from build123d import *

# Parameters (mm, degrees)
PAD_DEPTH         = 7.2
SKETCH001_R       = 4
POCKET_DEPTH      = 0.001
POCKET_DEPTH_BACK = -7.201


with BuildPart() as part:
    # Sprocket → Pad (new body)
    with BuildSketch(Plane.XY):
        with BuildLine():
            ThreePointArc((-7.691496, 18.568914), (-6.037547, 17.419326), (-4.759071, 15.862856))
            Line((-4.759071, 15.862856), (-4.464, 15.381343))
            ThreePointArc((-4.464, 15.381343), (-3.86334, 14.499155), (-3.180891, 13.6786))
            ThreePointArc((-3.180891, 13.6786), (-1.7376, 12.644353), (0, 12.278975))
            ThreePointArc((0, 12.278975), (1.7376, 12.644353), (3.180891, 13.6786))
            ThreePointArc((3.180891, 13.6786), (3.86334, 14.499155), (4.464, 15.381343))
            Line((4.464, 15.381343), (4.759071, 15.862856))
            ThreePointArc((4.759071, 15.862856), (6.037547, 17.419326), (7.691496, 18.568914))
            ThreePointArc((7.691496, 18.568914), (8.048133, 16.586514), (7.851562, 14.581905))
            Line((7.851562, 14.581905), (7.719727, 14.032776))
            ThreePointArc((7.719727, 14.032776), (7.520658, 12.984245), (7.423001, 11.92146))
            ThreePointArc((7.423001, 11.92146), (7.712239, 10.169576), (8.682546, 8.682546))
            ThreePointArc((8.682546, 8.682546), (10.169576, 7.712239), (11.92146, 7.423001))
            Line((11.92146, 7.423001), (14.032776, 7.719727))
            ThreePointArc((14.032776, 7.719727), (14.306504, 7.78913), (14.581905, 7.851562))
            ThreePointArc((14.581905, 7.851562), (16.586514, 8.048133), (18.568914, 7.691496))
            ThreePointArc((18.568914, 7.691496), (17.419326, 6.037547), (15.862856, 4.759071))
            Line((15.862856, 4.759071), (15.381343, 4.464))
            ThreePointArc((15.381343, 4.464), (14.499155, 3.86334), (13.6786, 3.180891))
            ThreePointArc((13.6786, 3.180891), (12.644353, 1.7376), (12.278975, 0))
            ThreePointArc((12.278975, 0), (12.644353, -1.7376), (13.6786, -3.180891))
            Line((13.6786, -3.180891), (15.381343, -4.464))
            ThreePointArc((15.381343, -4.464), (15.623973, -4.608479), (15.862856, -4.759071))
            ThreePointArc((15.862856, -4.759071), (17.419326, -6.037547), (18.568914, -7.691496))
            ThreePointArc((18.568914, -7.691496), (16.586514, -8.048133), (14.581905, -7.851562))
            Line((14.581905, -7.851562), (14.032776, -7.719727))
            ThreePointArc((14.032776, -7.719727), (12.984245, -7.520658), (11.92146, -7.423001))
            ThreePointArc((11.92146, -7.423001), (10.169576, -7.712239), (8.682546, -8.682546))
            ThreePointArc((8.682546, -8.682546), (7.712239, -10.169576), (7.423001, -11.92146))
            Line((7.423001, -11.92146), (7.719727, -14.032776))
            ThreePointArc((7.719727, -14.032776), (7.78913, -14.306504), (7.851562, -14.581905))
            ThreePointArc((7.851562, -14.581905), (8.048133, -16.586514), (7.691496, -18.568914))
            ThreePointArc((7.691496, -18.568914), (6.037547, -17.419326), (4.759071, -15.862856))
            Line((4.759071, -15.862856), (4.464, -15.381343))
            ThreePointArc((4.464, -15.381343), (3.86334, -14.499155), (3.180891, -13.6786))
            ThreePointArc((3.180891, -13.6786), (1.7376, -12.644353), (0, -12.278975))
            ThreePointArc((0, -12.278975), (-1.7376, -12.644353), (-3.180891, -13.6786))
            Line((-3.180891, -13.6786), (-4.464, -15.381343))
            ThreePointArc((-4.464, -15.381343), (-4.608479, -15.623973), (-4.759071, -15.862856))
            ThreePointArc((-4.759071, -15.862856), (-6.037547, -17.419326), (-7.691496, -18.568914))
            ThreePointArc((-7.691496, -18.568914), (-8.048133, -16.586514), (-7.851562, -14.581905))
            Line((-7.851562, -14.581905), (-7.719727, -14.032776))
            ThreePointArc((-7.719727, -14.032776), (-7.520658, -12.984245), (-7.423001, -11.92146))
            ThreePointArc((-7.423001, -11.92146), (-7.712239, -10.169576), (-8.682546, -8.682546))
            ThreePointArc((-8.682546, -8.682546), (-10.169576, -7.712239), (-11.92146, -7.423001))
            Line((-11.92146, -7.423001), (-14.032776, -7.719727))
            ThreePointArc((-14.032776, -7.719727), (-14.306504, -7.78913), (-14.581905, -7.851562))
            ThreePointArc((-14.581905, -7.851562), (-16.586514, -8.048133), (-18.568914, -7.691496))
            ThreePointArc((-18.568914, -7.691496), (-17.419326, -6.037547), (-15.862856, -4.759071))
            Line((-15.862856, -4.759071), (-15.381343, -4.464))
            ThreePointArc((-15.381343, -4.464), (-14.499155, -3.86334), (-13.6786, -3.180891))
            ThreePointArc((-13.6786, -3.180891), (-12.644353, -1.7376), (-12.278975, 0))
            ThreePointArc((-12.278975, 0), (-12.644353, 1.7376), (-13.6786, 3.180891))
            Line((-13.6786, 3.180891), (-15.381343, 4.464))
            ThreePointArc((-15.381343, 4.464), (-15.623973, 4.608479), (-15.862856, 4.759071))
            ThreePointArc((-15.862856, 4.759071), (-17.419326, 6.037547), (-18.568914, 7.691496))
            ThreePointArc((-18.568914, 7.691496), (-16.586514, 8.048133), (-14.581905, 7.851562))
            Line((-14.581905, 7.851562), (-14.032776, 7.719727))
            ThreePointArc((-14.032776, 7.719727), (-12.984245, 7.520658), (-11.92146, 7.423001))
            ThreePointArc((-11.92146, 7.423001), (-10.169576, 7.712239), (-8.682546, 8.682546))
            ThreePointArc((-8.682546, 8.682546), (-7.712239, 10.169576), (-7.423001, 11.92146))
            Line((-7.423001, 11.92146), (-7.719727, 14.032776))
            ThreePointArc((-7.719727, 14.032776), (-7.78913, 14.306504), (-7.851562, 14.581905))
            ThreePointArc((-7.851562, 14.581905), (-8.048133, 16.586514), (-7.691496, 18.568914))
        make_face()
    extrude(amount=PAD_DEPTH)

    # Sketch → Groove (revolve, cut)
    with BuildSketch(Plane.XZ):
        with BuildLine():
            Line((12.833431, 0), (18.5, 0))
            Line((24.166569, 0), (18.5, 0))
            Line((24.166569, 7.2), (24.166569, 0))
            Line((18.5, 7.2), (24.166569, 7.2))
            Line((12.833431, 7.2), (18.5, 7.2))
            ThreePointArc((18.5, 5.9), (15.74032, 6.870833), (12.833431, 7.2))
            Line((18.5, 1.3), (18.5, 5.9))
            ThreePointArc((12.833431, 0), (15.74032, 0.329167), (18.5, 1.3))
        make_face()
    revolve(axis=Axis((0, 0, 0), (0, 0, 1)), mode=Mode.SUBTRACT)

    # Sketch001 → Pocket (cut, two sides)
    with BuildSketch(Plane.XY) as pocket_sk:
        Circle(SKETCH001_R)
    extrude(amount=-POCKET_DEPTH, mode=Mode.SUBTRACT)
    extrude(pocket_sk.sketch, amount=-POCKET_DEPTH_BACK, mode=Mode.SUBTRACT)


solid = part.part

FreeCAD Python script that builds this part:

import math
import FreeCAD as App
import Part
import Sketcher
from FreeCAD import Vector

doc = App.newDocument("Part")
params = doc.addObject("Spreadsheet::Sheet", "Params")
for row, (alias, value) in enumerate([
    ("pad1_length", "7.2 mm"),
    ("sketch2_height", "7.2 mm"),
    ("sketch2_height2", "4.6 mm"),
    ("groove_angle", "360 deg"),
    ("sketch3_diameter", "8 mm"),
], start=1):
    params.set(f"A{row}", alias)
    params.set(f"B{row}", "=" + value)
    params.setAlias(f"B{row}", alias)

body = doc.addObject("PartDesign::Body", "Body")

sketch1 = body.newObject("Sketcher::SketchObject", "Sketch")
sketch1.AttachmentSupport = (doc.getObject("XY_Plane"), [""])
sketch1.MapMode = "FlatFace"
sketch1.addGeometry([
    Part.ArcOfCircle(Part.Circle(Vector(-11.007099, 12.034061, 0), Vector(0, 0, 1), 7.327859), math.radians(31.499988), math.radians(63.098027)),
    Part.ArcOfCircle(Part.Circle(Vector(-0.726167, 16.29256, 0), Vector(0, 0, 1), 7.327864), math.radians(161.901981), math.radians(193.499994)),
    Part.ArcOfCircle(Part.Circle(Vector(3.027006, 16.903244, 0), Vector(0, 0, 1), 11.123482), math.radians(-167.954515), math.radians(-165.045329)),
    Part.LineSegment(Vector(-7.719727, 14.032776, 0), Vector(-7.423001, 11.92146, 0)),
    Part.ArcOfCircle(Part.Circle(Vector(-11.733276, 11.733272, 0), Vector(0, 0, 1), 4.314381), math.radians(-44.999965), math.radians(2.499958)),
    Part.ArcOfCircle(Part.Circle(Vector(-11.733272, 11.733276, 0), Vector(0, 0, 1), 4.314381), math.radians(-92.499958), math.radians(-45.000035)),
    Part.ArcOfCircle(Part.Circle(Vector(-11.436285, 18.534963, 0), Vector(0, 0, 1), 11.122549), math.radians(-103.499912), math.radians(-92.500082)),
    Part.LineSegment(Vector(-14.032776, 7.719727, 0), Vector(-14.581905, 7.851562, 0)),
    Part.ArcOfCircle(Part.Circle(Vector(-16.29256, 0.726167, 0), Vector(0, 0, 1), 7.327864), math.radians(76.500006), math.radians(108.098019)),
    Part.ArcOfCircle(Part.Circle(Vector(-12.034061, 11.007099, 0), Vector(0, 0, 1), 7.327859), math.radians(-153.098027), math.radians(-121.499988)),
    Part.ArcOfCircle(Part.Circle(Vector(-9.812852, 14.091384, 0), Vector(0, 0, 1), 11.121808), math.radians(-122.954762), math.radians(-120.045144)),
    Part.LineSegment(Vector(-15.381343, 4.464, 0), Vector(-13.6786, 3.180891, 0)),
    Part.ArcOfCircle(Part.Circle(Vector(-16.593353, -0.000001, 0), Vector(0, 0, 1), 4.314378), math.radians(0.000011), math.radians(47.499973)),
    Part.ArcOfCircle(Part.Circle(Vector(-16.593353, 0.000001, 0), Vector(0, 0, 1), 4.314378), math.radians(-47.499973), math.radians(-0.000011)),
    Part.ArcOfCircle(Part.Circle(Vector(-21.192716, 5.019314, 0), Vector(0, 0, 1), 11.122288), math.radians(-58.500042), math.radians(-47.499953)),
    Part.LineSegment(Vector(-15.381343, -4.464, 0), Vector(-15.862856, -4.759071, 0)),
    Part.ArcOfCircle(Part.Circle(Vector(-12.034061, -11.007099, 0), Vector(0, 0, 1), 7.327859), math.radians(121.499988), math.radians(153.098027)),
    Part.ArcOfCircle(Part.Circle(Vector(-16.29256, -0.726167, 0), Vector(0, 0, 1), 7.327864), math.radians(-108.098019), math.radians(-76.500006)),
    Part.ArcOfCircle(Part.Circle(Vector(-16.903244, 3.027006, 0), Vector(0, 0, 1), 11.123482), math.radians(-77.954515), math.radians(-75.045329)),
    Part.LineSegment(Vector(-14.032776, -7.719727, 0), Vector(-11.92146, -7.423001, 0)),
    Part.ArcOfCircle(Part.Circle(Vector(-11.733272, -11.733276, 0), Vector(0, 0, 1), 4.314381), math.radians(45.000035), math.radians(92.499958)),
    Part.ArcOfCircle(Part.Circle(Vector(-11.733276, -11.733272, 0), Vector(0, 0, 1), 4.314381), math.radians(-2.499958), math.radians(44.999965)),
    Part.ArcOfCircle(Part.Circle(Vector(-18.534963, -11.436285, 0), Vector(0, 0, 1), 11.122549), math.radians(-13.499912), math.radians(-2.500082)),
    Part.LineSegment(Vector(-7.719727, -14.032776, 0), Vector(-7.851562, -14.581905, 0)),
    Part.ArcOfCircle(Part.Circle(Vector(-0.726167, -16.29256, 0), Vector(0, 0, 1), 7.327864), math.radians(166.500006), math.radians(198.098019)),
    Part.ArcOfCircle(Part.Circle(Vector(-11.007099, -12.034061, 0), Vector(0, 0, 1), 7.327859), math.radians(-63.098027), math.radians(-31.499988)),
    Part.ArcOfCircle(Part.Circle(Vector(-14.091384, -9.812852, 0), Vector(0, 0, 1), 11.121808), math.radians(-32.954762), math.radians(-30.045144)),
    Part.LineSegment(Vector(-4.464, -15.381343, 0), Vector(-3.180891, -13.6786, 0)),
    Part.ArcOfCircle(Part.Circle(Vector(0.000001, -16.593353, 0), Vector(0, 0, 1), 4.314378), math.radians(90.000011), math.radians(137.499973)),
    Part.ArcOfCircle(Part.Circle(Vector(-0.000001, -16.593353, 0), Vector(0, 0, 1), 4.314378), math.radians(42.500027), math.radians(89.999989)),
    Part.ArcOfCircle(Part.Circle(Vector(-5.019314, -21.192716, 0), Vector(0, 0, 1), 11.122288), math.radians(31.499958), math.radians(42.500047)),
    Part.LineSegment(Vector(4.464, -15.381343, 0), Vector(4.759071, -15.862856, 0)),
    Part.ArcOfCircle(Part.Circle(Vector(11.007099, -12.034061, 0), Vector(0, 0, 1), 7.327859), math.radians(-148.500012), math.radians(-116.901973)),
    Part.ArcOfCircle(Part.Circle(Vector(0.726167, -16.29256, 0), Vector(0, 0, 1), 7.327864), math.radians(-18.098019), math.radians(13.499994)),
    Part.ArcOfCircle(Part.Circle(Vector(-3.027006, -16.903244, 0), Vector(0, 0, 1), 11.123482), math.radians(12.045485), math.radians(14.954671)),
    Part.LineSegment(Vector(7.719727, -14.032776, 0), Vector(7.423001, -11.92146, 0)),
    Part.ArcOfCircle(Part.Circle(Vector(11.733276, -11.733272, 0), Vector(0, 0, 1), 4.314381), math.radians(135.000035), math.radians(182.499958)),
    Part.ArcOfCircle(Part.Circle(Vector(11.733272, -11.733276, 0), Vector(0, 0, 1), 4.314381), math.radians(87.500042), math.radians(134.999965)),
    Part.ArcOfCircle(Part.Circle(Vector(11.436285, -18.534963, 0), Vector(0, 0, 1), 11.122549), math.radians(76.500088), math.radians(87.499918)),
    Part.LineSegment(Vector(14.032776, -7.719727, 0), Vector(14.581905, -7.851562, 0)),
    Part.ArcOfCircle(Part.Circle(Vector(16.29256, -0.726167, 0), Vector(0, 0, 1), 7.327864), math.radians(-103.499994), math.radians(-71.901981)),
    Part.ArcOfCircle(Part.Circle(Vector(12.034061, -11.007099, 0), Vector(0, 0, 1), 7.327859), math.radians(26.901973), math.radians(58.500012)),
    Part.ArcOfCircle(Part.Circle(Vector(9.812852, -14.091384, 0), Vector(0, 0, 1), 11.121808), math.radians(57.045238), math.radians(59.954856)),
    Part.LineSegment(Vector(15.381343, -4.464, 0), Vector(13.6786, -3.180891, 0)),
    Part.ArcOfCircle(Part.Circle(Vector(16.593353, 0.000001, 0), Vector(0, 0, 1), 4.314378), math.radians(-179.999989), math.radians(-132.500027)),
    Part.ArcOfCircle(Part.Circle(Vector(16.593353, -0.000001, 0), Vector(0, 0, 1), 4.314378), math.radians(132.500027), math.radians(179.999989)),
    Part.ArcOfCircle(Part.Circle(Vector(21.192716, -5.019314, 0), Vector(0, 0, 1), 11.122288), math.radians(121.499958), math.radians(132.500047)),
    Part.LineSegment(Vector(15.381343, 4.464, 0), Vector(15.862856, 4.759071, 0)),
    Part.ArcOfCircle(Part.Circle(Vector(12.034061, 11.007099, 0), Vector(0, 0, 1), 7.327859), math.radians(-58.500012), math.radians(-26.901973)),
    Part.ArcOfCircle(Part.Circle(Vector(16.29256, 0.726167, 0), Vector(0, 0, 1), 7.327864), math.radians(71.901981), math.radians(103.499994)),
    Part.ArcOfCircle(Part.Circle(Vector(16.903244, -3.027006, 0), Vector(0, 0, 1), 11.123482), math.radians(102.045485), math.radians(104.954671)),
    Part.LineSegment(Vector(14.032776, 7.719727, 0), Vector(11.92146, 7.423001, 0)),
    Part.ArcOfCircle(Part.Circle(Vector(11.733272, 11.733276, 0), Vector(0, 0, 1), 4.314381), math.radians(-134.999965), math.radians(-87.500042)),
    Part.ArcOfCircle(Part.Circle(Vector(11.733276, 11.733272, 0), Vector(0, 0, 1), 4.314381), math.radians(177.500042), math.radians(224.999965)),
    Part.ArcOfCircle(Part.Circle(Vector(18.534963, 11.436285, 0), Vector(0, 0, 1), 11.122549), math.radians(166.500088), math.radians(177.499918)),
    Part.LineSegment(Vector(7.719727, 14.032776, 0), Vector(7.851562, 14.581905, 0)),
    Part.ArcOfCircle(Part.Circle(Vector(0.726167, 16.29256, 0), Vector(0, 0, 1), 7.327864), math.radians(-13.499994), math.radians(18.098019)),
    Part.ArcOfCircle(Part.Circle(Vector(11.007099, 12.034061, 0), Vector(0, 0, 1), 7.327859), math.radians(116.901973), math.radians(148.500012)),
    Part.LineSegment(Vector(4.759071, 15.862856, 0), Vector(4.464, 15.381343, 0)),
    Part.ArcOfCircle(Part.Circle(Vector(-5.019314, 21.192716, 0), Vector(0, 0, 1), 11.122288), math.radians(-42.500047), math.radians(-31.499958)),
    Part.ArcOfCircle(Part.Circle(Vector(-0.000001, 16.593353, 0), Vector(0, 0, 1), 4.314378), math.radians(-89.999989), math.radians(-42.500027)),
    Part.ArcOfCircle(Part.Circle(Vector(0.000001, 16.593353, 0), Vector(0, 0, 1), 4.314378), math.radians(-137.499973), math.radians(-90.000011)),
    Part.ArcOfCircle(Part.Circle(Vector(5.019314, 21.192716, 0), Vector(0, 0, 1), 11.122288), math.radians(-148.500042), math.radians(-137.499953)),
    Part.LineSegment(Vector(-4.464, 15.381343, 0), Vector(-4.759071, 15.862856, 0)),
], False)
sketch1.addConstraint([
    Sketcher.Constraint("Coincident", 0, 2, 1, 1),
    Sketcher.Constraint("Coincident", 1, 2, 2, 1),
    Sketcher.Constraint("Coincident", 2, 2, 3, 1),
    Sketcher.Constraint("Coincident", 3, 2, 4, 2),
    Sketcher.Constraint("Coincident", 4, 1, 5, 2),
    Sketcher.Constraint("Coincident", 5, 1, 6, 2),
    Sketcher.Constraint("Coincident", 6, 1, 7, 1),
    Sketcher.Constraint("Coincident", 7, 2, 8, 1),
    Sketcher.Constraint("Coincident", 8, 2, 9, 1),
    Sketcher.Constraint("Coincident", 9, 2, 10, 1),
    Sketcher.Constraint("Coincident", 10, 2, 11, 1),
    Sketcher.Constraint("Coincident", 11, 2, 12, 2),
    Sketcher.Constraint("Coincident", 12, 1, 13, 2),
    Sketcher.Constraint("Coincident", 13, 1, 14, 2),
    Sketcher.Constraint("Coincident", 14, 1, 15, 1),
    Sketcher.Constraint("Coincident", 15, 2, 16, 1),
    Sketcher.Constraint("Coincident", 16, 2, 17, 1),
    Sketcher.Constraint("Coincident", 17, 2, 18, 1),
    Sketcher.Constraint("Coincident", 18, 2, 19, 1),
    Sketcher.Constraint("Coincident", 19, 2, 20, 2),
    Sketcher.Constraint("Coincident", 20, 1, 21, 2),
    Sketcher.Constraint("Coincident", 21, 1, 22, 2),
    Sketcher.Constraint("Coincident", 22, 1, 23, 1),
    Sketcher.Constraint("Coincident", 23, 2, 24, 1),
    Sketcher.Constraint("Coincident", 24, 2, 25, 1),
    Sketcher.Constraint("Coincident", 25, 2, 26, 1),
    Sketcher.Constraint("Coincident", 26, 2, 27, 1),
    Sketcher.Constraint("Coincident", 27, 2, 28, 2),
    Sketcher.Constraint("Coincident", 28, 1, 29, 2),
    Sketcher.Constraint("Coincident", 29, 1, 30, 2),
    Sketcher.Constraint("Coincident", 30, 1, 31, 1),
    Sketcher.Constraint("Coincident", 31, 2, 32, 1),
    Sketcher.Constraint("Coincident", 32, 2, 33, 1),
    Sketcher.Constraint("Coincident", 33, 2, 34, 1),
    Sketcher.Constraint("Coincident", 34, 2, 35, 1),
    Sketcher.Constraint("Coincident", 35, 2, 36, 2),
    Sketcher.Constraint("Coincident", 36, 1, 37, 2),
    Sketcher.Constraint("Coincident", 37, 1, 38, 2),
    Sketcher.Constraint("Coincident", 38, 1, 39, 1),
    Sketcher.Constraint("Coincident", 39, 2, 40, 1),
    Sketcher.Constraint("Coincident", 40, 2, 41, 1),
    Sketcher.Constraint("Coincident", 41, 2, 42, 1),
    Sketcher.Constraint("Coincident", 42, 2, 43, 1),
    Sketcher.Constraint("Coincident", 43, 2, 44, 2),
    Sketcher.Constraint("Coincident", 44, 1, 45, 2),
    Sketcher.Constraint("Coincident", 45, 1, 46, 2),
    Sketcher.Constraint("Coincident", 46, 1, 47, 1),
    Sketcher.Constraint("Coincident", 47, 2, 48, 1),
    Sketcher.Constraint("Coincident", 48, 2, 49, 1),
    Sketcher.Constraint("Coincident", 49, 2, 50, 1),
    Sketcher.Constraint("Coincident", 50, 2, 51, 1),
    Sketcher.Constraint("Coincident", 51, 2, 52, 2),
    Sketcher.Constraint("Coincident", 52, 1, 53, 2),
    Sketcher.Constraint("Coincident", 53, 1, 54, 2),
    Sketcher.Constraint("Coincident", 54, 1, 55, 1),
    Sketcher.Constraint("Coincident", 55, 2, 56, 1),
    Sketcher.Constraint("Coincident", 56, 2, 57, 1),
    Sketcher.Constraint("Coincident", 57, 2, 58, 1),
    Sketcher.Constraint("Coincident", 58, 2, 59, 2),
    Sketcher.Constraint("Coincident", 59, 1, 60, 2),
    Sketcher.Constraint("Coincident", 60, 1, 61, 2),
    Sketcher.Constraint("Coincident", 61, 1, 62, 2),
    Sketcher.Constraint("Coincident", 62, 1, 63, 1),
    Sketcher.Constraint("Coincident", 63, 2, 0, 1),
    Sketcher.Constraint("Coincident", 5, 3, 4, 3),
    Sketcher.Constraint("Coincident", 13, 3, 12, 3),
    Sketcher.Constraint("Coincident", 21, 3, 20, 3),
    Sketcher.Constraint("Coincident", 29, 3, 28, 3),
    Sketcher.Constraint("Coincident", 37, 3, 36, 3),
    Sketcher.Constraint("Coincident", 45, 3, 44, 3),
    Sketcher.Constraint("Coincident", 53, 3, 52, 3),
    Sketcher.Constraint("Coincident", 61, 3, 60, 3),
    Sketcher.Constraint("PointOnObject", 12, 3, -1),
    Sketcher.Constraint("PointOnObject", 28, 3, -2),
    Sketcher.Constraint("PointOnObject", 44, 3, -1),
    Sketcher.Constraint("PointOnObject", 60, 3, -2),
    Sketcher.Constraint("PointOnObject", 12, 1, -1),
    Sketcher.Constraint("PointOnObject", 28, 1, -2),
    Sketcher.Constraint("PointOnObject", 44, 1, -1),
    Sketcher.Constraint("PointOnObject", 60, 1, -2),
    Sketcher.Constraint("Radius", 0, 7.327859),
    Sketcher.Constraint("Radius", 4, 4.314381),
    Sketcher.Constraint("Radius", 6, 11.122549),
    Sketcher.Constraint("Radius", 9, 7.327859),
    Sketcher.Constraint("Radius", 10, 11.121808),
    Sketcher.Constraint("Radius", 12, 4.314378),
    Sketcher.Constraint("Radius", 14, 11.122288),
    Sketcher.Constraint("Radius", 16, 7.327859),
    Sketcher.Constraint("Radius", 20, 4.314381),
    Sketcher.Constraint("Radius", 22, 11.122549),
    Sketcher.Constraint("Radius", 25, 7.327859),
    Sketcher.Constraint("Radius", 26, 11.121808),
    Sketcher.Constraint("Radius", 28, 4.314378),
    Sketcher.Constraint("Radius", 30, 11.122288),
    Sketcher.Constraint("Radius", 32, 7.327859),
    Sketcher.Constraint("Radius", 36, 4.314381),
    Sketcher.Constraint("Radius", 38, 11.122549),
    Sketcher.Constraint("Radius", 41, 7.327859),
    Sketcher.Constraint("Radius", 42, 11.121808),
    Sketcher.Constraint("Radius", 44, 4.314378),
    Sketcher.Constraint("Radius", 46, 11.122288),
    Sketcher.Constraint("Radius", 48, 7.327859),
    Sketcher.Constraint("Radius", 52, 4.314381),
    Sketcher.Constraint("Radius", 54, 11.122549),
    Sketcher.Constraint("Radius", 57, 7.327859),
    Sketcher.Constraint("Radius", 59, 11.122288),
    Sketcher.Constraint("Radius", 60, 4.314378),
    Sketcher.Constraint("Radius", 62, 11.122288),
    Sketcher.Constraint("DistanceX", 3, 2, -1, 1, 7.423001),
    Sketcher.Constraint("DistanceY", -1, 1, 5, 1, 7.423001),
    Sketcher.Constraint("DistanceY", -1, 1, 10, 2, 4.464),
    Sketcher.Constraint("DistanceY", 14, 1, -1, 1, 4.464),
    Sketcher.Constraint("DistanceY", 19, 2, -1, 1, 7.423001),
    Sketcher.Constraint("DistanceX", 21, 1, -1, 1, 7.423001),
    Sketcher.Constraint("DistanceX", 26, 2, -1, 1, 4.464),
    Sketcher.Constraint("DistanceX", -1, 1, 30, 1, 4.464),
    Sketcher.Constraint("DistanceX", -1, 1, 35, 2, 7.423001),
    Sketcher.Constraint("DistanceY", 37, 1, -1, 1, 7.423001),
    Sketcher.Constraint("DistanceY", 42, 2, -1, 1, 4.464),
    Sketcher.Constraint("DistanceY", -1, 1, 46, 1, 4.464),
    Sketcher.Constraint("DistanceY", -1, 1, 51, 2, 7.423001),
    Sketcher.Constraint("DistanceX", -1, 1, 53, 1, 7.423001),
    Sketcher.Constraint("DistanceX", -1, 1, 58, 2, 4.464),
    Sketcher.Constraint("DistanceX", 62, 1, -1, 1, 4.464),
    Sketcher.Constraint("Radius", 1, 7.327864),
    Sketcher.Constraint("Radius", 2, 11.123482),
    Sketcher.Constraint("Radius", 8, 7.327864),
    Sketcher.Constraint("Radius", 17, 7.327864),
    Sketcher.Constraint("Radius", 18, 11.123482),
    Sketcher.Constraint("Radius", 24, 7.327864),
    Sketcher.Constraint("Radius", 33, 7.327864),
    Sketcher.Constraint("Radius", 34, 11.123482),
    Sketcher.Constraint("Radius", 40, 7.327864),
    Sketcher.Constraint("Radius", 49, 7.327864),
    Sketcher.Constraint("Radius", 50, 11.123482),
    Sketcher.Constraint("Radius", 56, 7.327864),
    Sketcher.Constraint("DistanceX", 0, 3, -1, 1, 11.007099),
    Sketcher.Constraint("DistanceY", -1, 1, 9, 3, 11.007099),
    Sketcher.Constraint("DistanceY", 16, 3, -1, 1, 11.007099),
    Sketcher.Constraint("DistanceX", 25, 3, -1, 1, 11.007099),
    Sketcher.Constraint("DistanceX", -1, 1, 32, 3, 11.007099),
    Sketcher.Constraint("DistanceY", 41, 3, -1, 1, 11.007099),
    Sketcher.Constraint("DistanceY", -1, 1, 48, 3, 11.007099),
    Sketcher.Constraint("DistanceX", -1, 1, 57, 3, 11.007099),
    Sketcher.Constraint("DistanceX", 11, 2, -1, 1, 13.6786),
    Sketcher.Constraint("DistanceX", 13, 1, -1, 1, 13.6786),
    Sketcher.Constraint("DistanceY", 27, 2, -1, 1, 13.6786),
    Sketcher.Constraint("DistanceY", 29, 1, -1, 1, 13.6786),
    Sketcher.Constraint("DistanceX", -1, 1, 43, 2, 13.6786),
    Sketcher.Constraint("DistanceX", -1, 1, 45, 1, 13.6786),
    Sketcher.Constraint("DistanceY", -1, 1, 59, 1, 13.6786),
    Sketcher.Constraint("DistanceY", -1, 1, 61, 1, 13.6786),
    Sketcher.Constraint("Distance", 15, 0.564731),
    Sketcher.Constraint("Distance", 31, 0.564731),
    Sketcher.Constraint("Distance", 47, 0.564731),
    Sketcher.Constraint("Distance", 58, 0.564731),
    Sketcher.Constraint("Distance", 63, 0.564731),
    Sketcher.Constraint("DistanceY", -1, 1, 0, 3, 12.034061),
    Sketcher.Constraint("DistanceY", -1, 1, 1, 3, 16.29256),
    Sketcher.Constraint("DistanceX", 8, 3, -1, 1, 16.29256),
    Sketcher.Constraint("DistanceX", 9, 3, -1, 1, 12.034061),
    Sketcher.Constraint("DistanceX", 10, 3, -1, 1, 9.812852),
    Sketcher.Constraint("DistanceX", 16, 3, -1, 1, 12.034061),
    Sketcher.Constraint("DistanceX", 17, 3, -1, 1, 16.29256),
    Sketcher.Constraint("DistanceY", 24, 3, -1, 1, 16.29256),
    Sketcher.Constraint("DistanceY", 25, 3, -1, 1, 12.034061),
    Sketcher.Constraint("DistanceY", 26, 3, -1, 1, 9.812852),
    Sketcher.Constraint("DistanceY", 32, 3, -1, 1, 12.034061),
    Sketcher.Constraint("DistanceY", 33, 3, -1, 1, 16.29256),
    Sketcher.Constraint("DistanceX", -1, 1, 40, 3, 16.29256),
    Sketcher.Constraint("DistanceX", -1, 1, 41, 3, 12.034061),
    Sketcher.Constraint("DistanceX", -1, 1, 42, 3, 9.812852),
    Sketcher.Constraint("DistanceX", -1, 1, 48, 3, 12.034061),
    Sketcher.Constraint("DistanceX", -1, 1, 49, 3, 16.29256),
    Sketcher.Constraint("DistanceY", -1, 1, 56, 3, 16.29256),
    Sketcher.Constraint("DistanceY", -1, 1, 57, 3, 12.034061),
    Sketcher.Constraint("DistanceX", 1, 2, -1, 1, 7.851562),
    Sketcher.Constraint("DistanceY", -1, 1, 3, 2, 11.92146),
    Sketcher.Constraint("DistanceX", 5, 1, -1, 1, 11.92146),
    Sketcher.Constraint("DistanceY", -1, 1, 9, 2, 4.759071),
    Sketcher.Constraint("DistanceY", -1, 1, 11, 2, 3.180891),
    Sketcher.Constraint("DistanceY", 15, 2, -1, 1, 4.759071),
    Sketcher.Constraint("DistanceY", 17, 2, -1, 1, 7.851562),
    Sketcher.Constraint("DistanceX", 19, 2, -1, 1, 11.92146),
    Sketcher.Constraint("DistanceY", 21, 1, -1, 1, 11.92146),
    Sketcher.Constraint("DistanceX", 25, 2, -1, 1, 4.759071),
    Sketcher.Constraint("DistanceX", 27, 2, -1, 1, 3.180891),
    Sketcher.Constraint("DistanceX", -1, 1, 31, 2, 4.759071),
    Sketcher.Constraint("DistanceX", -1, 1, 33, 2, 7.851562),
    Sketcher.Constraint("DistanceY", 35, 2, -1, 1, 11.92146),
    Sketcher.Constraint("DistanceX", -1, 1, 37, 1, 11.92146),
    Sketcher.Constraint("DistanceY", 41, 2, -1, 1, 4.759071),
    Sketcher.Constraint("DistanceY", 43, 2, -1, 1, 3.180891),
    Sketcher.Constraint("DistanceY", -1, 1, 47, 2, 4.759071),
    Sketcher.Constraint("DistanceY", -1, 1, 49, 2, 7.851562),
    Sketcher.Constraint("DistanceX", -1, 1, 51, 2, 11.92146),
    Sketcher.Constraint("DistanceY", -1, 1, 53, 1, 11.92146),
    Sketcher.Constraint("DistanceX", -1, 1, 57, 2, 4.759071),
    Sketcher.Constraint("DistanceX", -1, 1, 59, 1, 3.180891),
    Sketcher.Constraint("DistanceX", 63, 2, -1, 1, 4.759071),
    Sketcher.Constraint("Distance", 3, 2.132065),
    Sketcher.Constraint("Distance", 7, 0.564733),
    Sketcher.Constraint("Distance", 19, 2.132065),
    Sketcher.Constraint("Distance", 23, 0.564733),
    Sketcher.Constraint("Distance", 35, 2.132065),
    Sketcher.Constraint("Distance", 39, 0.564733),
    Sketcher.Constraint("Distance", 51, 2.132065),
    Sketcher.Constraint("Distance", 55, 0.564733),
    Sketcher.Constraint("DistanceX", 1, 3, -1, 1, 0.726167),
    Sketcher.Constraint("DistanceX", -1, 1, 2, 3, 3.027006),
    Sketcher.Constraint("DistanceX", 6, 3, -1, 1, 11.436285),
    Sketcher.Constraint("DistanceY", -1, 1, 8, 3, 0.726167),
    Sketcher.Constraint("DistanceY", 17, 3, -1, 1, 0.726167),
    Sketcher.Constraint("DistanceX", 18, 3, -1, 1, 16.903244),
    Sketcher.Constraint("DistanceX", 22, 3, -1, 1, 18.534963),
    Sketcher.Constraint("DistanceX", 24, 3, -1, 1, 0.726167),
    Sketcher.Constraint("DistanceX", -1, 1, 33, 3, 0.726167),
    Sketcher.Constraint("DistanceX", 34, 3, -1, 1, 3.027006),
    Sketcher.Constraint("DistanceX", -1, 1, 38, 3, 11.436285),
    Sketcher.Constraint("DistanceY", 40, 3, -1, 1, 0.726167),
    Sketcher.Constraint("DistanceY", -1, 1, 49, 3, 0.726167),
    Sketcher.Constraint("DistanceX", -1, 1, 50, 3, 16.903244),
    Sketcher.Constraint("DistanceX", -1, 1, 54, 3, 18.534963),
    Sketcher.Constraint("DistanceX", -1, 1, 56, 3, 0.726167),
    Sketcher.Constraint("DistanceX", 4, 1, -1, 1, 8.682546),
    Sketcher.Constraint("DistanceX", 6, 1, -1, 1, 14.032776),
    Sketcher.Constraint("DistanceX", 20, 1, -1, 1, 8.682546),
    Sketcher.Constraint("DistanceX", 22, 1, -1, 1, 7.719727),
    Sketcher.Constraint("DistanceX", -1, 1, 36, 1, 8.682546),
    Sketcher.Constraint("DistanceX", -1, 1, 38, 1, 14.032776),
    Sketcher.Constraint("DistanceX", -1, 1, 52, 1, 8.682546),
    Sketcher.Constraint("DistanceX", -1, 1, 54, 1, 7.719727),
])
pad1 = body.newObject("PartDesign::Pad", "Pad")
pad1.Profile = sketch1
pad1.setExpression("Length", "Params.pad1_length")

sketch2 = body.newObject("Sketcher::SketchObject", "Sketch001")
sketch2.AttachmentSupport = (doc.getObject("XZ_Plane"), [""])
sketch2.MapMode = "FlatFace"
sketch2.addGeometry([
    Part.LineSegment(Vector(12.8, 0, 0), Vector(24.2, 0, 0)),
    Part.LineSegment(Vector(24.2, 0, 0), Vector(24.2, 7.2, 0)),
    Part.LineSegment(Vector(24.2, 7.2, 0), Vector(12.8, 7.2, 0)),
    Part.ArcOfCircle(Part.Circle(Vector(12.8, -5.8, 0), Vector(0, 0, 1), 13), math.radians(64), math.radians(90)),
    Part.LineSegment(Vector(18.5, 5.9, 0), Vector(18.5, 1.3, 0)),
    Part.ArcOfCircle(Part.Circle(Vector(12.8, 13, 0), Vector(0, 0, 1), 13), math.radians(-90), math.radians(-64)),
], False)
sketch2.addConstraint([
    Sketcher.Constraint("Coincident", 0, 2, 1, 1),
    Sketcher.Constraint("Coincident", 1, 2, 2, 1),
    Sketcher.Constraint("Tangent", 2, 2, 3, 2),
    Sketcher.Constraint("Coincident", 3, 1, 4, 1),
    Sketcher.Constraint("Coincident", 4, 2, 5, 2),
    Sketcher.Constraint("Tangent", 5, 1, 0, 1),
    Sketcher.Constraint("Horizontal", 0),
    Sketcher.Constraint("Vertical", 1),
    Sketcher.Constraint("Horizontal", 2),
    Sketcher.Constraint("Vertical", 4),
    Sketcher.Constraint("Equal", 3, 5),
    Sketcher.Constraint("PointOnObject", 0, 2, -1),
    Sketcher.Constraint("Vertical", 3, 3, 5, 3),
    Sketcher.Constraint("DistanceY", 1, 1, 1, 2, 7.2),
    Sketcher.Constraint("DistanceY", 4, 2, 4, 1, 4.6),
    Sketcher.Constraint("DistanceX", -1, 1, 3, 1, 18.5),
    Sketcher.Constraint("Radius", 3, 12.999985),
    Sketcher.Constraint("DistanceX", 0, 1, 0, 2, 11.333138),
])
sketch2.setExpression("Constraints[13]", "Params.sketch2_height")
sketch2.setExpression("Constraints[14]", "Params.sketch2_height2")
groove = body.newObject("PartDesign::Groove", "Groove")
groove.Profile = sketch2
groove.ReferenceAxis = (sketch2, ["V_Axis"])
groove.setExpression("Angle", "Params.groove_angle")

sketch3 = body.newObject("Sketcher::SketchObject", "Sketch002")
sketch3.AttachmentSupport = (doc.getObject("XY_Plane"), [""])
sketch3.MapMode = "FlatFace"
sketch3.addGeometry(Part.Circle(Vector(0, 0, 0), Vector(0, 0, 1), 4), False)
sketch3.addConstraint([
    Sketcher.Constraint("Coincident", 0, 3, -1, 1),
    Sketcher.Constraint("Diameter", 0, 8.0),
])
sketch3.setExpression("Constraints[1]", "Params.sketch3_diameter")
pocket1 = body.newObject("PartDesign::Pocket", "Pocket")
pocket1.Profile = sketch3
pocket1.Type = "ThroughAll"
pocket1.Midplane = True

doc.recompute()
